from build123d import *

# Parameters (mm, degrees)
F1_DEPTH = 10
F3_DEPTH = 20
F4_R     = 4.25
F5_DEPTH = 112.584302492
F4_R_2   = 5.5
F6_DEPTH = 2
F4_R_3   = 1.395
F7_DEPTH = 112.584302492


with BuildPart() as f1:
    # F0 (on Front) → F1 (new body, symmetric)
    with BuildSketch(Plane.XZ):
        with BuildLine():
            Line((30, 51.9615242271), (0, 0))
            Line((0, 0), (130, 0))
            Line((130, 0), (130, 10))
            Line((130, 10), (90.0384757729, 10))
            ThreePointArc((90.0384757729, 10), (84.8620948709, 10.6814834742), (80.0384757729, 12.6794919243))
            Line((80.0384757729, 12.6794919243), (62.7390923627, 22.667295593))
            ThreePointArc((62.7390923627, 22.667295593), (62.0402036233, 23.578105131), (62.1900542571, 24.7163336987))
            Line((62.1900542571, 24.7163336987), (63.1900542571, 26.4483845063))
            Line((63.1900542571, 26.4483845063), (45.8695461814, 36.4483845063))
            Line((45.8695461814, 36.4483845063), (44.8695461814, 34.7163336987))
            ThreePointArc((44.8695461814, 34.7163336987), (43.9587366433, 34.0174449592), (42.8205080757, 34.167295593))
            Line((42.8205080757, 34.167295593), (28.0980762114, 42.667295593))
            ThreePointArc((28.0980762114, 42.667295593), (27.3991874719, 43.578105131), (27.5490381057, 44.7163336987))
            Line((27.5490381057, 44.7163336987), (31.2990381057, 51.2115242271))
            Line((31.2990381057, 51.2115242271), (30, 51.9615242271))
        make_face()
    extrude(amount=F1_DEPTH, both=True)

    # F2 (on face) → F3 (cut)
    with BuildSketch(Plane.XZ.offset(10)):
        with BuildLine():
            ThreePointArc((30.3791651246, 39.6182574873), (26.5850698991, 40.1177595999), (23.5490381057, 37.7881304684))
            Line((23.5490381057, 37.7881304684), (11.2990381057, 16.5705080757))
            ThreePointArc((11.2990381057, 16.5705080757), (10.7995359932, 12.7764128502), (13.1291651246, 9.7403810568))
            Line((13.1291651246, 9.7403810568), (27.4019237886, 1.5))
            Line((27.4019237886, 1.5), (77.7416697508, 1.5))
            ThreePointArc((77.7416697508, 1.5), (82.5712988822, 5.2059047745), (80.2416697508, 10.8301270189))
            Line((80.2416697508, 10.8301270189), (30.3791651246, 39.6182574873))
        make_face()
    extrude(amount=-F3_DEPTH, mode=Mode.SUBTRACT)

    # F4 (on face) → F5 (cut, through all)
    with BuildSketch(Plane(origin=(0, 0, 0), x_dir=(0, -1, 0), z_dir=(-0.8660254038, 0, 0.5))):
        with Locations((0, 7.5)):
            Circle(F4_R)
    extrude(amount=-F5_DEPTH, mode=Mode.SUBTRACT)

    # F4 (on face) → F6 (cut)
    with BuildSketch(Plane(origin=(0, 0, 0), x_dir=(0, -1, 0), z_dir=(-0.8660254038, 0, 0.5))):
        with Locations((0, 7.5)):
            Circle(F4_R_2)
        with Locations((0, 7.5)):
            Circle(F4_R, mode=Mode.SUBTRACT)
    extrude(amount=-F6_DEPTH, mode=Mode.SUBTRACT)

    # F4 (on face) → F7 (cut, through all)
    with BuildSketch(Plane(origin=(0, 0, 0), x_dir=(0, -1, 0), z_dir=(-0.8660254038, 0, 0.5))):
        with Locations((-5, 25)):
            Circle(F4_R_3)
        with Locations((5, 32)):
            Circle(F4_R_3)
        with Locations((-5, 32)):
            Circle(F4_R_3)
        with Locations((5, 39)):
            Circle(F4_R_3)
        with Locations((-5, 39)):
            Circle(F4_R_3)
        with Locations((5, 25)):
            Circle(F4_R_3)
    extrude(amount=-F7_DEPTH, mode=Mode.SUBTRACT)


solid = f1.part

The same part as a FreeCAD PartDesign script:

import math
import FreeCAD as App
import Part
import Sketcher
from FreeCAD import Vector
Q = App.Units.Quantity

doc = App.newDocument("Part")
body = doc.addObject("PartDesign::Body", "Body")

sketch1 = body.newObject("Sketcher::SketchObject", "Sketch")
sketch1.AttachmentSupport = (doc.getObject("XZ_Plane"), [""])
sketch1.MapMode = "FlatFace"
sketch1.addGeometry([
    Part.LineSegment(Vector(30, 51.961524, 0), Vector(0, 0, 0)),
    Part.LineSegment(Vector(0, 0, 0), Vector(130, 0, 0)),
    Part.LineSegment(Vector(130, 0, 0), Vector(130, 10, 0)),
    Part.LineSegment(Vector(130, 10, 0), Vector(90.038476, 10, 0)),
    Part.ArcOfCircle(Part.Circle(Vector(90.038476, 30, 0), Vector(0, 0, 1), 20), math.radians(-120), math.radians(-90)),
    Part.LineSegment(Vector(80.038476, 12.679492, 0), Vector(62.739092, 22.667296, 0)),
    Part.ArcOfCircle(Part.Circle(Vector(63.489092, 23.966334, 0), Vector(0, 0, 1), 1.5), math.radians(150), math.radians(240)),
    Part.LineSegment(Vector(62.190054, 24.716334, 0), Vector(63.190054, 26.448385, 0)),
    Part.LineSegment(Vector(63.190054, 26.448385, 0), Vector(45.869546, 36.448385, 0)),
    Part.LineSegment(Vector(45.869546, 36.448385, 0), Vector(44.869546, 34.716334, 0)),
    Part.ArcOfCircle(Part.Circle(Vector(43.570508, 35.466334, 0), Vector(0, 0, 1), 1.5), math.radians(-120), math.radians(-30)),
    Part.LineSegment(Vector(42.820508, 34.167296, 0), Vector(28.098076, 42.667296, 0)),
    Part.ArcOfCircle(Part.Circle(Vector(28.848076, 43.966334, 0), Vector(0, 0, 1), 1.5), math.radians(150), math.radians(240)),
    Part.LineSegment(Vector(27.549038, 44.716334, 0), Vector(31.299038, 51.211524, 0)),
    Part.LineSegment(Vector(31.299038, 51.211524, 0), Vector(30, 51.961524, 0)),
], False)
sketch1.addConstraint([
    Sketcher.Constraint("Coincident", 0, 2, 1, 1),
    Sketcher.Constraint("Coincident", 1, 2, 2, 1),
    Sketcher.Constraint("Coincident", 2, 2, 3, 1),
    Sketcher.Constraint("Tangent", 3, 2, 4, 2),
    Sketcher.Constraint("Tangent", 4, 1, 5, 1),
    Sketcher.Constraint("Tangent", 5, 2, 6, 2),
    Sketcher.Constraint("Tangent", 6, 1, 7, 1),
    Sketcher.Constraint("Coincident", 7, 2, 8, 1),
    Sketcher.Constraint("Coincident", 8, 2, 9, 1),
    Sketcher.Constraint("Tangent", 9, 2, 10, 2),
    Sketcher.Constraint("Tangent", 10, 1, 11, 1),
    Sketcher.Constraint("Tangent", 11, 2, 12, 2),
    Sketcher.Constraint("Tangent", 12, 1, 13, 1),
    Sketcher.Constraint("Coincident", 13, 2, 14, 1),
    Sketcher.Constraint("Coincident", 14, 2, 0, 1),
    Sketcher.Constraint("Horizontal", 1),
    Sketcher.Constraint("Vertical", 2),
    Sketcher.Constraint("Horizontal", 3),
    Sketcher.Constraint("Coincident", 0, 2, -1, 1),
    Sketcher.Constraint("Equal", 6, 10),
    Sketcher.Constraint("Equal", 10, 12),
    Sketcher.Constraint("Perpendicular", 0, 5),
    Sketcher.Constraint("Perpendicular", 5, 7),
    Sketcher.Constraint("Perpendicular", 7, 8),
    Sketcher.Constraint("Perpendicular", 8, 9),
    Sketcher.Constraint("Perpendicular", 9, 11),
    Sketcher.Constraint("Perpendicular", 11, 13),
    Sketcher.Constraint("Perpendicular", 13, 14),
    Sketcher.Constraint("Equal", 7, 9),
    Sketcher.Constraint("Radius", 4, Q("20 mm")),
    Sketcher.Constraint("Radius", 6, Q("1.5 mm")),
    Sketcher.Constraint("DistanceX", 1, 1, 1, 2, Q("130 mm")),
    Sketcher.Constraint("DistanceY", 2, 1, 2, 2, Q("10 mm")),
    Sketcher.Constraint("Angle", 0, Q("-120 deg")),
    Sketcher.Constraint("Distance", 0, Q("60 mm")),
    Sketcher.Constraint("Distance", 7, Q("2 mm")),
    Sketcher.Constraint("Distance", 8, Q("20 mm")),
    Sketcher.Constraint("Distance", 11, Q("17 mm")),
    Sketcher.Constraint("Distance", 13, Q("7.5 mm")),
    Sketcher.Constraint("Distance", 14, Q("1.5 mm")),
])
pad1 = body.newObject("PartDesign::Pad", "Pad")
pad1.Profile = sketch1
pad1.Length = 20
pad1.Midplane = True

sketch2 = body.newObject("Sketcher::SketchObject", "Sketch001")
sketch2.AttachmentSupport = (doc.getObject("XZ_Plane"), [""])
sketch2.MapMode = "FlatFace"
sketch2.AttachmentOffset = App.Placement(Vector(0, 0, 10), App.Rotation())
sketch2.addGeometry([
    Part.ArcOfCircle(Part.Circle(Vector(27.879165, 35.28813, 0), Vector(0, 0, 1), 5), math.radians(60), math.radians(150)),
    Part.LineSegment(Vector(23.549038, 37.78813, 0), Vector(11.299038, 16.570508, 0)),
    Part.ArcOfCircle(Part.Circle(Vector(15.629165, 14.070508, 0), Vector(0, 0, 1), 5), math.radians(150), math.radians(240)),
    Part.LineSegment(Vector(13.129165, 9.740381, 0), Vector(27.401924, 1.5, 0)),
    Part.LineSegment(Vector(27.401924, 1.5, 0), Vector(77.74167, 1.5, 0)),
    Part.ArcOfCircle(Part.Circle(Vector(77.74167, 6.5, 0), Vector(0, 0, 1), 5), math.radians(-90), math.radians(60)),
    Part.LineSegment(Vector(80.24167, 10.830127, 0), Vector(30.379165, 39.618257, 0)),
], False)
sketch2.addConstraint([
    Sketcher.Constraint("Tangent", 0, 2, 1, 1),
    Sketcher.Constraint("Tangent", 1, 2, 2, 1),
    Sketcher.Constraint("Tangent", 2, 2, 3, 1),
    Sketcher.Constraint("Coincident", 3, 2, 4, 1),
    Sketcher.Constraint("Tangent", 4, 2, 5, 1),
    Sketcher.Constraint("Tangent", 5, 2, 6, 1),
    Sketcher.Constraint("Tangent", 6, 2, 0, 1),
    Sketcher.Constraint("Horizontal", 4),
    Sketcher.Constraint("Equal", 0, 2),
    Sketcher.Constraint("Equal", 2, 5),
    Sketcher.Constraint("Perpendicular", 1, 3),
    Sketcher.Constraint("Parallel", 3, 6),
    Sketcher.Constraint("Radius", 0, Q("5 mm")),
    Sketcher.Constraint("Angle", 1, Q("-120 deg")),
    Sketcher.Constraint("Distance", 1, Q("24.5 mm")),
    Sketcher.Constraint("DistanceY", -1, 1, 5, 3, Q("6.5 mm")),
    Sketcher.Constraint("Distance", 6, Q("57.576261 mm")),
    Sketcher.Constraint("DistanceX", -1, 1, 5, 3, Q("77.74167 mm")),
])
pocket1 = body.newObject("PartDesign::Pocket", "Pocket")
pocket1.Profile = sketch2
pocket1.Length = 20

sketch3 = body.newObject("Sketcher::SketchObject", "Sketch002")
sketch3.Placement = App.Placement(Vector(0, 0, 0), App.Rotation(Vector(0, -1, 0), Vector(0.5, 0, 0.866025404), Vector(-0.866025404, 0, 0.5), "ZXY"))
sketch3.addGeometry(Part.Circle(Vector(0, 7.5, 0), Vector(0, 0, 1), 4.25), False)
sketch3.addConstraint([
    Sketcher.Constraint("PointOnObject", 0, 3, -2),
    Sketcher.Constraint("Diameter", 0, Q("8.5 mm")),
    Sketcher.Constraint("DistanceY", -1, 1, 0, 3, Q("7.5 mm")),
])
pocket2 = body.newObject("PartDesign::Pocket", "Pocket001")
pocket2.Profile = sketch3
pocket2.Type = "ThroughAll"

sketch4 = body.newObject("Sketcher::SketchObject", "Sketch003")
sketch4.Placement = App.Placement(Vector(0, 0, 0), App.Rotation(Vector(0, -1, 0), Vector(0.5, 0, 0.866025404), Vector(-0.866025404, 0, 0.5), "ZXY"))
sketch4.addGeometry([
    Part.Circle(Vector(0, 7.5, 0), Vector(0, 0, 1), 5.5),
    Part.Circle(Vector(0, 7.5, 0), Vector(0, 0, 1), 4.25),
], False)
sketch4.addConstraint([
    Sketcher.Constraint("Coincident", 1, 3, 0, 3),
    Sketcher.Constraint("PointOnObject", 0, 3, -2),
    Sketcher.Constraint("Diameter", 0, Q("11 mm")),
    Sketcher.Constraint("Diameter", 1, Q("8.5 mm")),
    Sketcher.Constraint("DistanceY", -1, 1, 0, 3, Q("7.5 mm")),
])
pocket3 = body.newObject("PartDesign::Pocket", "Pocket002")
pocket3.Profile = sketch4
pocket3.Length = 2

sketch5 = body.newObject("Sketcher::SketchObject", "Sketch004")
sketch5.Placement = App.Placement(Vector(0, 0, 0), App.Rotation(Vector(0, -1, 0), Vector(0.5, 0, 0.866025404), Vector(-0.866025404, 0, 0.5), "ZXY"))
sketch5.addGeometry([
    Part.Circle(Vector(-5, 25, 0), Vector(0, 0, 1), 1.395),
    Part.Circle(Vector(5, 32, 0), Vector(0, 0, 1), 1.395),
    Part.Circle(Vector(-5, 32, 0), Vector(0, 0, 1), 1.395),
    Part.Circle(Vector(5, 39, 0), Vector(0, 0, 1), 1.395),
    Part.Circle(Vector(-5, 39, 0), Vector(0, 0, 1), 1.395),
    Part.Circle(Vector(5, 25, 0), Vector(0, 0, 1), 1.395),
], False)
sketch5.addConstraint([
    Sketcher.Constraint("Equal", 0, 1),
    Sketcher.Constraint("Equal", 1, 2),
    Sketcher.Constraint("Equal", 2, 3),
    Sketcher.Constraint("Equal", 3, 4),
    Sketcher.Constraint("Equal", 4, 5),
    Sketcher.Constraint("Symmetric", 1, 3, 2, 3, -2),
    Sketcher.Constraint("Symmetric", 3, 3, 4, 3, -2),
    Sketcher.Constraint("Symmetric", 0, 3, 5, 3, -2),
    Sketcher.Constraint("Vertical", 0, 3, 2, 3),
    Sketcher.Constraint("Vertical", 1, 3, 3, 3),
    Sketcher.Constraint("Diameter", 0, Q("2.79 mm")),
    Sketcher.Constraint("DistanceX", 0, 3, -1, 1, Q("5 mm")),
    Sketcher.Constraint("DistanceY", -1, 1, 0, 3, Q("25 mm")),
    Sketcher.Constraint("DistanceY", -1, 1, 1, 3, Q("32 mm")),
    Sketcher.Constraint("DistanceY", -1, 1, 3, 3, Q("39 mm")),
])
pocket4 = body.newObject("PartDesign::Pocket", "Pocket003")
pocket4.Profile = sketch5
pocket4.Type = "ThroughAll"

doc.recompute()
